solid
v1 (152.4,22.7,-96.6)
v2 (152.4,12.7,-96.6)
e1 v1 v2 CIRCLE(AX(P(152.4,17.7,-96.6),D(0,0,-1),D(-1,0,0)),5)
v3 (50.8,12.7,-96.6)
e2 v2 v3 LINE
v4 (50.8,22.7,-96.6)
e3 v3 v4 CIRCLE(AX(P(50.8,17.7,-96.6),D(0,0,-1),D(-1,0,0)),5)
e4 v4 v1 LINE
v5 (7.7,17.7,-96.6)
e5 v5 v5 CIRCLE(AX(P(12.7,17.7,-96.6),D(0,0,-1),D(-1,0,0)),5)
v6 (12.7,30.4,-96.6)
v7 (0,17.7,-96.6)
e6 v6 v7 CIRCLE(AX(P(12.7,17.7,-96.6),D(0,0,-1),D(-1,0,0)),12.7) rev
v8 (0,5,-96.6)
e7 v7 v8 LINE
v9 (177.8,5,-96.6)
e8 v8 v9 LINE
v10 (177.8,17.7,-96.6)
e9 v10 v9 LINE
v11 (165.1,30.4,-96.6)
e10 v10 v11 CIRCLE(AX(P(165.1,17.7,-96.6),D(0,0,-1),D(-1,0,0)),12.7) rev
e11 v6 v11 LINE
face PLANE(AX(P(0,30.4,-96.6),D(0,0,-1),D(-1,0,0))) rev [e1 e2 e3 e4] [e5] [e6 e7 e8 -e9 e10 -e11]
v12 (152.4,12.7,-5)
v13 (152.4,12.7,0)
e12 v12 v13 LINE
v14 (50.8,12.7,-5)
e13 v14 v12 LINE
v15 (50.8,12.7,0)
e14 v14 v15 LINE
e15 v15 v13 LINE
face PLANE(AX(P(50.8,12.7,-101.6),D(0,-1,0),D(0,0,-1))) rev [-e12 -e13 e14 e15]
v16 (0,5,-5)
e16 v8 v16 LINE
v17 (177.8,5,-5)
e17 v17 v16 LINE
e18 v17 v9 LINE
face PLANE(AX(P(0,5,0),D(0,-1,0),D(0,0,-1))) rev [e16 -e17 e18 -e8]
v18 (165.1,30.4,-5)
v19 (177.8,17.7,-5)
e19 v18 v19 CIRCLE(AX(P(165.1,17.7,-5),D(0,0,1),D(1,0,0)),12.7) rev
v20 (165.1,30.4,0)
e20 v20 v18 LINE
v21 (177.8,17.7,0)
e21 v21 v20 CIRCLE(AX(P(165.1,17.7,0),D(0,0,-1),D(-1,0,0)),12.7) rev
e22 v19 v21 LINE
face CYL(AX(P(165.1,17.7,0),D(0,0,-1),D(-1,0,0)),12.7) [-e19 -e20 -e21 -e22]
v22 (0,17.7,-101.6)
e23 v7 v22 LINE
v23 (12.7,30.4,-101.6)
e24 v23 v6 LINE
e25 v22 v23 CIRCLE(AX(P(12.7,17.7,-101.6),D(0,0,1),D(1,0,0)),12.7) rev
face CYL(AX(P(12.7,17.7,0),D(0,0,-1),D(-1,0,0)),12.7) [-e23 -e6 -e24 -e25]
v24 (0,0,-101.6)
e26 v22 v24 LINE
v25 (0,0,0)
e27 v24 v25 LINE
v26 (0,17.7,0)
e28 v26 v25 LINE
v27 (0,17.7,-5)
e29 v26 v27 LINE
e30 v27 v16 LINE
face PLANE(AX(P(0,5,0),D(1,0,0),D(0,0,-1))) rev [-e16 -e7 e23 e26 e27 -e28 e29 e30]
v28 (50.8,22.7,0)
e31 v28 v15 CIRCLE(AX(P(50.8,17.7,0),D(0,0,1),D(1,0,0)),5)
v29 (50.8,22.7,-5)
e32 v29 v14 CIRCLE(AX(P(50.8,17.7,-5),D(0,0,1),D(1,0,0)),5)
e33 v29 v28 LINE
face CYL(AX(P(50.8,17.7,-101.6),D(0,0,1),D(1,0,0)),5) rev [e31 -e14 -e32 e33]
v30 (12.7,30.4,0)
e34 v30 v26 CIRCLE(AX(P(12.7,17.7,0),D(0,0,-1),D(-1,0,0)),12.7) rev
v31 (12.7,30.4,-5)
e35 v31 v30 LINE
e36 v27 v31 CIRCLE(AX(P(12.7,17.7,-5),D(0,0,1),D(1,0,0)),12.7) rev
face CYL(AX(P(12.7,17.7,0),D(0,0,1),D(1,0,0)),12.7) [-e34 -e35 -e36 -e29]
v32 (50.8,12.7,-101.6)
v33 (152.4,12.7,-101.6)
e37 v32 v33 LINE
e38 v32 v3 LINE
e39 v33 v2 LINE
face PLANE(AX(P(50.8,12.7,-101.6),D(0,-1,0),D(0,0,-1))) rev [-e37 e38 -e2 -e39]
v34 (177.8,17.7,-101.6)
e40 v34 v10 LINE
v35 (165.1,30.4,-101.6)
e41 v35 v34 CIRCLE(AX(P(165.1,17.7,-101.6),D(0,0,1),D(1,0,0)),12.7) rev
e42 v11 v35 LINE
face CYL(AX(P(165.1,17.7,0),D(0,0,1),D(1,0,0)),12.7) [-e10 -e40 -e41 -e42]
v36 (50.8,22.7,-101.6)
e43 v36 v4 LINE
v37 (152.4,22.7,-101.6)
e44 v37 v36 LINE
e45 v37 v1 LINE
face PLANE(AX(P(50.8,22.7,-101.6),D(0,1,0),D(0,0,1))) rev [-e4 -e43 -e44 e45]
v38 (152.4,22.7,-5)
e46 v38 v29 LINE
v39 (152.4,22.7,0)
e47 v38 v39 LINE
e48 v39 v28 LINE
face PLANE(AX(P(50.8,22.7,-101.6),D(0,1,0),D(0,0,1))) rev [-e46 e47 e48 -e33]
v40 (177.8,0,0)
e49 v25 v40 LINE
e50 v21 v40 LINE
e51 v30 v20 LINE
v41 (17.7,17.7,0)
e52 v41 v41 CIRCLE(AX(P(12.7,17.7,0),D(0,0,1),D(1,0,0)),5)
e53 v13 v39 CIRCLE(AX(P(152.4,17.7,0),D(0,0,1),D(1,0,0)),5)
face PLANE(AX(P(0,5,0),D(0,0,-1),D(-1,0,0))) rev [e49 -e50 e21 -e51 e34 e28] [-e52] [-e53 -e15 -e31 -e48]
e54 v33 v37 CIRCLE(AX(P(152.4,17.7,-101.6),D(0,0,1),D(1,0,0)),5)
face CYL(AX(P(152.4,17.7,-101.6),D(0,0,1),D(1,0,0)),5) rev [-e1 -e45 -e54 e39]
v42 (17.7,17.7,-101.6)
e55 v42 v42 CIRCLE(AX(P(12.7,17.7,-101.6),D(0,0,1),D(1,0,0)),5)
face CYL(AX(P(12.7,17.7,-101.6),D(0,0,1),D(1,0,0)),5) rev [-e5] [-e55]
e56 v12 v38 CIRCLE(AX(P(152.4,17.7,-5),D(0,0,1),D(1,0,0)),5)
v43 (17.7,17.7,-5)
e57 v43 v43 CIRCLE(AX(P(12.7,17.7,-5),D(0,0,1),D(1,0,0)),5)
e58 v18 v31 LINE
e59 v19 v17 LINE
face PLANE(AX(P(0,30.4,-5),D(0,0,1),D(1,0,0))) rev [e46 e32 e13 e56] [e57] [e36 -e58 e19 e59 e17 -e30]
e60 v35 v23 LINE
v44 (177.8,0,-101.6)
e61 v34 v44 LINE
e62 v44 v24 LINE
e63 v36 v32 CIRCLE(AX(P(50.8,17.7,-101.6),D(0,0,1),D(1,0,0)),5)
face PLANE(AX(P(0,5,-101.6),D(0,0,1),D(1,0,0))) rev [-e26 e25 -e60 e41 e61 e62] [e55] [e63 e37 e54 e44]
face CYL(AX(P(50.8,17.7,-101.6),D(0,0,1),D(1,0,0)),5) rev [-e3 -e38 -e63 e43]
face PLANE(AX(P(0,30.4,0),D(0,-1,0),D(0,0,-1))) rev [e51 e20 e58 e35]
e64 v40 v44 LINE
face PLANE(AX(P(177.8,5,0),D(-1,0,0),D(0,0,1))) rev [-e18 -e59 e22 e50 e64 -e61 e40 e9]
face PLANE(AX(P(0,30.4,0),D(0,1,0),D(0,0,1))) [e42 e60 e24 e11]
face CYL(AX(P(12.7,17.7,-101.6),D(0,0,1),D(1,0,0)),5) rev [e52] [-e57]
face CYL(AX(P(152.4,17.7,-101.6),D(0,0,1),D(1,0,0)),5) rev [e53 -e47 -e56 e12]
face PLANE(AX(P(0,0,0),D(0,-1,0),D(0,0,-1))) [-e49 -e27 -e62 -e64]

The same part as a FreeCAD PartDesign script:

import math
import FreeCAD as App
import Part
import Sketcher
from FreeCAD import Vector
Q = App.Units.Quantity


def edges_at(feature, points):
    """Names of the edges that pass closest to the given points."""
    edges = feature.Shape.Edges
    near = lambda p: min(range(len(edges)), key=lambda i: edges[i].distToShape(Part.Vertex(*p))[0])
    return sorted({f"Edge{near(p) + 1}" for p in points})


def add_polygon(sketch, points):
    """Adds a closed chain of lines whose ends are joined by coincident constraints."""
    first, n = sketch.GeometryCount, len(points)
    for a, b in zip(points, points[1:] + points[:1]):
        sketch.addGeometry(Part.LineSegment(App.Vector(*a, 0), App.Vector(*b, 0)), False)
    for i in range(n):
        sketch.addConstraint(Sketcher.Constraint("Coincident", first + i, 2, first + (i + 1) % n, 1))

doc = App.newDocument("Part")
body = doc.addObject("PartDesign::Body", "Body")

sketch1 = doc.addObject("Sketcher::SketchObject", "Sketch")
body.addObject(sketch1)
sketch1.AttachmentSupport = (doc.XZ_Plane, [""])
sketch1.MapMode = "FlatFace"
add_polygon(sketch1, [(0, -102), (0, 0), (178, 0), (178, -102)])
sketch1.addConstraint(Sketcher.Constraint("Vertical", 0))
sketch1.addConstraint(Sketcher.Constraint("Horizontal", 1))
sketch1.addConstraint(Sketcher.Constraint("Vertical", 2))
sketch1.addConstraint(Sketcher.Constraint("Horizontal", 3))
sketch1.addConstraint(Sketcher.Constraint("Coincident", 0, 2, -1, 1))
sketch1.addConstraint(Sketcher.Constraint("DistanceX", 1, 1, 1, 2, Q("7 in")))
sketch1.addConstraint(Sketcher.Constraint("DistanceY", 0, 1, 0, 2, Q("4 in")))
pad1 = doc.addObject("PartDesign::Pad", "Pad")
body.addObject(pad1)
pad1.Profile = sketch1
pad1.Length = 5
pad1.Reversed = True

sketch2 = doc.addObject("Sketcher::SketchObject", "Sketch001")
body.addObject(sketch2)
sketch2.AttachmentSupport = (doc.XZ_Plane, [""])
sketch2.MapMode = "FlatFace"
sketch2.AttachmentOffset = App.Placement(Vector(0, 0, -5), App.Rotation())
add_polygon(sketch2, [(0, -5), (0, 0), (178, 0), (178, -5)])
add_polygon(sketch2, [(0, -102), (0, -97), (178, -97), (178, -102)])
sketch2.addConstraint(Sketcher.Constraint("Vertical", 0))
sketch2.addConstraint(Sketcher.Constraint("Horizontal", 1))
sketch2.addConstraint(Sketcher.Constraint("Vertical", 2))
sketch2.addConstraint(Sketcher.Constraint("Horizontal", 3))
sketch2.addConstraint(Sketcher.Constraint("Vertical", 4))
sketch2.addConstraint(Sketcher.Constraint("Horizontal", 5))
sketch2.addConstraint(Sketcher.Constraint("Vertical", 6))
sketch2.addConstraint(Sketcher.Constraint("Horizontal", 7))
sketch2.addConstraint(Sketcher.Constraint("Coincident", 0, 2, -1, 1))
sketch2.addConstraint(Sketcher.Constraint("PointOnObject", 4, 2, -2))
sketch2.addConstraint(Sketcher.Constraint("Vertical", 2, 2, 5, 2))
sketch2.addConstraint(Sketcher.Constraint("Equal", 2, 4))
sketch2.addConstraint(Sketcher.Constraint("DistanceX", 1, 1, 1, 2, Q("7 in")))
sketch2.addConstraint(Sketcher.Constraint("DistanceY", 6, 2, -1, 1, Q("4 in")))
sketch2.addConstraint(Sketcher.Constraint("DistanceY", 0, 1, 0, 2, Q("5 mm")))
pad2 = doc.addObject("PartDesign::Pad", "Pad001")
body.addObject(pad2)
pad2.Profile = sketch2
pad2.Length = Q("1 in")
pad2.Reversed = True

sketch3 = doc.addObject("Sketcher::SketchObject", "Sketch002")
body.addObject(sketch3)
sketch3.AttachmentSupport = (doc.XY_Plane, [""])
sketch3.MapMode = "FlatFace"
sketch3.addGeometry(Part.Circle(Vector(13, 18, 0), Vector(0, 0, 1), 5), False)
sketch3.addGeometry(Part.LineSegment(Vector(152, 23, 0), Vector(51, 23, 0)), False)
sketch3.addGeometry(Part.ArcOfCircle(Part.Circle(Vector(51, 18, 0), Vector(0, 0, 1), 5), math.radians(90), math.radians(270)), False)
sketch3.addGeometry(Part.LineSegment(Vector(51, 13, 0), Vector(152, 13, 0)), False)
sketch3.addGeometry(Part.ArcOfCircle(Part.Circle(Vector(152, 18, 0), Vector(0, 0, 1), 5), math.radians(-90), math.radians(90)), False)
sketch3.addConstraint(Sketcher.Constraint("Tangent", 1, 2, 2, 1))
sketch3.addConstraint(Sketcher.Constraint("Tangent", 2, 2, 3, 1))
sketch3.addConstraint(Sketcher.Constraint("Tangent", 3, 2, 4, 1))
sketch3.addConstraint(Sketcher.Constraint("Tangent", 4, 2, 1, 1))
sketch3.addConstraint(Sketcher.Constraint("Horizontal", 1))
sketch3.addConstraint(Sketcher.Constraint("Horizontal", 3))
sketch3.addConstraint(Sketcher.Constraint("Equal", 0, 2))
sketch3.addConstraint(Sketcher.Constraint("Horizontal", 0, 3, 2, 3))
sketch3.addConstraint(Sketcher.Constraint("DistanceX", 1, 2, 1, 1, Q("4 in")))
sketch3.addConstraint(Sketcher.Constraint("DistanceX", -1, 1, 2, 3, Q("2 in")))
sketch3.addConstraint(Sketcher.Constraint("DistanceX", -1, 1, 0, 3, Q("0.5 in")))
sketch3.addConstraint(Sketcher.Constraint("DistanceY", -1, 1, 2, 2, Q("0.5 in")))
sketch3.addConstraint(Sketcher.Constraint("Diameter", 0, Q("10 mm")))
pocket1 = doc.addObject("PartDesign::Pocket", "Pocket")
body.addObject(pocket1)
pocket1.Profile = sketch3
pocket1.Type = "ThroughAll"
doc.recompute()

fillet = doc.addObject("PartDesign::Fillet", "Fillet")
body.addObject(fillet)
fillet.Base = (pocket1, edges_at(pocket1, [
    (0, 30.4, -2.5),
    (177.8, 30.4, -2.5),
    (0, 30.4, -99.1),
    (177.8, 30.4, -99.1),
]))
fillet.Radius = Q("0.5 in")

doc.recompute()
